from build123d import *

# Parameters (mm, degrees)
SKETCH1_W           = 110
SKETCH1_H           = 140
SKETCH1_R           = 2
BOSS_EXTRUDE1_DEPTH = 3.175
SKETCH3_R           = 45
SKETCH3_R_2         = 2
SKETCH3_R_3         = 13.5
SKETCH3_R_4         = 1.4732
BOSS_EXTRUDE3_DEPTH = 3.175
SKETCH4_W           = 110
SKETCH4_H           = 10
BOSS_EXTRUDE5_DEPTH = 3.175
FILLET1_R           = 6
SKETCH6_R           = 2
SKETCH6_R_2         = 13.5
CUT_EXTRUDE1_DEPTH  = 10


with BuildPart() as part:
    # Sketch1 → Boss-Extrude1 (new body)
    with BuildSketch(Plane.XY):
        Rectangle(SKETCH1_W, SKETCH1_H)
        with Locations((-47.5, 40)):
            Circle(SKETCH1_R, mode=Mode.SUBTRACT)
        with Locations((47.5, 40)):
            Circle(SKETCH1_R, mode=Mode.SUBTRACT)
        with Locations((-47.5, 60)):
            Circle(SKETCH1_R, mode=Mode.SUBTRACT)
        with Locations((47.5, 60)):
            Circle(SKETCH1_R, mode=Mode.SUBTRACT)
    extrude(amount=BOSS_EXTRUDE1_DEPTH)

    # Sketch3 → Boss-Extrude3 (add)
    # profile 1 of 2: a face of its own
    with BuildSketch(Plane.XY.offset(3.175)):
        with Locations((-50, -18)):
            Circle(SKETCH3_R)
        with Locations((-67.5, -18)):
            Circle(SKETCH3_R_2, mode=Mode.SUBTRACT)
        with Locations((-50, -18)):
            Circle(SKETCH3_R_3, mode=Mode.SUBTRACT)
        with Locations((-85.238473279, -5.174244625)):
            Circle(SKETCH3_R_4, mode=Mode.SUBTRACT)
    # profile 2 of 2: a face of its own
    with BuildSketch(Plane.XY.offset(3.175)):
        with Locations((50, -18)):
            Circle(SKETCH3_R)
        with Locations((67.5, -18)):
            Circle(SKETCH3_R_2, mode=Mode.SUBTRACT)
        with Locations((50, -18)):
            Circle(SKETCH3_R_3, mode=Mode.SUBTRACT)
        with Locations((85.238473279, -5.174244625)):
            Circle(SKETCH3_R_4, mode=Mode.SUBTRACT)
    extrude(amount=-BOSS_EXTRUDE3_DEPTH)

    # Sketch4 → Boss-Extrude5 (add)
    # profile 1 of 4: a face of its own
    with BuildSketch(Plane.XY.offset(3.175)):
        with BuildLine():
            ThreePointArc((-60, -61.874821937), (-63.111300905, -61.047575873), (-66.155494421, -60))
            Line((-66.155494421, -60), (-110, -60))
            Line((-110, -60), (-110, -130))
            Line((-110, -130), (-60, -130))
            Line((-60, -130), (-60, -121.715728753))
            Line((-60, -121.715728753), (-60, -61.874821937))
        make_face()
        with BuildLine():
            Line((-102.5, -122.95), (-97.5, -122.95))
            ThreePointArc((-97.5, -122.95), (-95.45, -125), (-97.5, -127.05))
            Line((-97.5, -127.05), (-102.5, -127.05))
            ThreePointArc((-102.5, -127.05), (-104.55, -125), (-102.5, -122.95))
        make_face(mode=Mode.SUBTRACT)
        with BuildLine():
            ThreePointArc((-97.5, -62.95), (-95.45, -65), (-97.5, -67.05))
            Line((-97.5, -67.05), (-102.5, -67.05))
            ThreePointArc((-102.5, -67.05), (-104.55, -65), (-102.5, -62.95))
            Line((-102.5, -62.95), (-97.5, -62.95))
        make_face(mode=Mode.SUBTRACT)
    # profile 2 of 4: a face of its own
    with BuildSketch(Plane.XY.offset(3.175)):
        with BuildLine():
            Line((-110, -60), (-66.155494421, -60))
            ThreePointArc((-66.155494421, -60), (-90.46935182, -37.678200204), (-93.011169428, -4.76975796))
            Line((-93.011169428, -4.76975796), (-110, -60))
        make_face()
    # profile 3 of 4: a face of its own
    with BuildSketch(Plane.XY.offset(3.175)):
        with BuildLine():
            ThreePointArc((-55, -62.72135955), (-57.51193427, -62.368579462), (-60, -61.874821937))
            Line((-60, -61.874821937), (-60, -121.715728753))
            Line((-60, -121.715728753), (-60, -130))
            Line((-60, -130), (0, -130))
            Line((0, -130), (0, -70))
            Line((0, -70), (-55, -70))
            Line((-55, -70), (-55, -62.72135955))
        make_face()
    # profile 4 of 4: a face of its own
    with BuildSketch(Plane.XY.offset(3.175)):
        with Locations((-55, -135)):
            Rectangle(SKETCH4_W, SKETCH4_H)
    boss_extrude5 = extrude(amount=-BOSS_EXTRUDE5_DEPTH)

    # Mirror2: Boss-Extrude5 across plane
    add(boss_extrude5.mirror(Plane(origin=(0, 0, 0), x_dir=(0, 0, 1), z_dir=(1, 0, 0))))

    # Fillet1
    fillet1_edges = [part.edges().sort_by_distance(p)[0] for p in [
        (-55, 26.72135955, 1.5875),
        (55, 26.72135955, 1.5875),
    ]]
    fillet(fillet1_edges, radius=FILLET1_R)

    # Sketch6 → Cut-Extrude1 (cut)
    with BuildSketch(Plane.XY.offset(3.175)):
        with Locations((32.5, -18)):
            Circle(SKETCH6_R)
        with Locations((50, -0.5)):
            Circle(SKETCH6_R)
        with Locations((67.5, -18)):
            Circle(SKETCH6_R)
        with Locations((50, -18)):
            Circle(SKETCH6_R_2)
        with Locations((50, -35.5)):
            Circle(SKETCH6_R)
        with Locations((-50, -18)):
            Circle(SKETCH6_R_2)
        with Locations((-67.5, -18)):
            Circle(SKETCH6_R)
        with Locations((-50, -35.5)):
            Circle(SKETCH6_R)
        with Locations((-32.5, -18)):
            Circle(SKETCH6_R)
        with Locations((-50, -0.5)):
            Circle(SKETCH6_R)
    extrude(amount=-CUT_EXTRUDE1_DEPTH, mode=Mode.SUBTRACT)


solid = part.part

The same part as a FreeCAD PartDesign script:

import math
import FreeCAD as App
import Part
import Sketcher
from FreeCAD import Vector


def edges_at(feature, points):
    """Names of the edges that pass closest to the given points."""
    edges = feature.Shape.Edges
    near = lambda p: min(range(len(edges)), key=lambda i: edges[i].distToShape(Part.Vertex(*p))[0])
    return sorted({f"Edge{near(p) + 1}" for p in points})

doc = App.newDocument("Part")
body = doc.addObject("PartDesign::Body", "Body")

sketch1 = body.newObject("Sketcher::SketchObject", "Sketch")
sketch1.AttachmentSupport = (doc.getObject("XY_Plane"), [""])
sketch1.MapMode = "FlatFace"
sketch1.addGeometry([
    Part.LineSegment(Vector(-55, 70, 0), Vector(-55, -70, 0)),
    Part.LineSegment(Vector(-55, -70, 0), Vector(55, -70, 0)),
    Part.LineSegment(Vector(55, -70, 0), Vector(55, 70, 0)),
    Part.LineSegment(Vector(55, 70, 0), Vector(-55, 70, 0)),
    Part.Circle(Vector(-47.5, 40, 0), Vector(0, 0, 1), 2),
    Part.Circle(Vector(47.5, 40, 0), Vector(0, 0, 1), 2),
    Part.Circle(Vector(-47.5, 60, 0), Vector(0, 0, 1), 2),
    Part.Circle(Vector(47.5, 60, 0), Vector(0, 0, 1), 2),
], False)
sketch1.addConstraint([
    Sketcher.Constraint("Coincident", 0, 2, 1, 1),
    Sketcher.Constraint("Coincident", 1, 2, 2, 1),
    Sketcher.Constraint("Coincident", 2, 2, 3, 1),
    Sketcher.Constraint("Coincident", 3, 2, 0, 1),
    Sketcher.Constraint("Vertical", 0),
    Sketcher.Constraint("Horizontal", 1),
    Sketcher.Constraint("Vertical", 2),
    Sketcher.Constraint("Horizontal", 3),
    Sketcher.Constraint("Equal", 4, 5),
    Sketcher.Constraint("Equal", 5, 6),
    Sketcher.Constraint("Equal", 6, 7),
    Sketcher.Constraint("Symmetric", 0, 2, 2, 2, -1, 1),
    Sketcher.Constraint("Symmetric", 4, 3, 5, 3, -2),
    Sketcher.Constraint("Symmetric", 6, 3, 7, 3, -2),
    Sketcher.Constraint("Vertical", 4, 3, 6, 3),
    Sketcher.Constraint("Diameter", 4, 4.0),
    Sketcher.Constraint("DistanceX", 1, 1, 1, 2, 110.0),
    Sketcher.Constraint("DistanceY", 0, 2, 0, 1, 140.0),
    Sketcher.Constraint("DistanceY", -1, 1, 4, 3, 40.0),
    Sketcher.Constraint("DistanceY", -1, 1, 6, 3, 60.0),
    Sketcher.Constraint("DistanceX", 4, 3, 5, 3, 95.0),
])
pad1 = body.newObject("PartDesign::Pad", "Pad")
pad1.Profile = sketch1
pad1.Length = 3.175

sketch2 = body.newObject("Sketcher::SketchObject", "Sketch001")
sketch2.AttachmentSupport = (doc.getObject("XY_Plane"), [""])
sketch2.MapMode = "FlatFace"
sketch2.AttachmentOffset = App.Placement(Vector(0, 0, 3.175), App.Rotation())
sketch2.addGeometry([
    Part.Circle(Vector(-50, -18, 0), Vector(0, 0, 1), 45),
    Part.Circle(Vector(-67.5, -18, 0), Vector(0, 0, 1), 2),
    Part.Circle(Vector(-50, -18, 0), Vector(0, 0, 1), 13.5),
    Part.Circle(Vector(-85.2, -5.2, 0), Vector(0, 0, 1), 1.5),
    Part.Circle(Vector(50, -18, 0), Vector(0, 0, 1), 45),
    Part.Circle(Vector(50, -18, 0), Vector(0, 0, 1), 13.5),
    Part.Circle(Vector(67.5, -18, 0), Vector(0, 0, 1), 2),
    Part.Circle(Vector(85.2, -5.2, 0), Vector(0, 0, 1), 1.5),
], False)
sketch2.addConstraint([
    Sketcher.Constraint("Coincident", 2, 3, 0, 3),
    Sketcher.Constraint("Coincident", 5, 3, 4, 3),
    Sketcher.Constraint("Equal", 0, 4),
    Sketcher.Constraint("Equal", 2, 5),
    Sketcher.Constraint("Equal", 1, 6),
    Sketcher.Constraint("Equal", 3, 7),
    Sketcher.Constraint("Symmetric", 0, 3, 4, 3, -2),
    Sketcher.Constraint("Symmetric", 1, 3, 6, 3, -2),
    Sketcher.Constraint("Symmetric", 3, 3, 7, 3, -2),
    Sketcher.Constraint("Horizontal", 0, 3, 1, 3),
    Sketcher.Constraint("Diameter", 0, 90.0),
    Sketcher.Constraint("Diameter", 1, 4.0),
    Sketcher.Constraint("Diameter", 2, 27.0),
    Sketcher.Constraint("DistanceX", 0, 3, -1, 1, 50.0),
    Sketcher.Constraint("DistanceY", 0, 3, -1, 1, 18.0),
    Sketcher.Constraint("DistanceX", 1, 3, 6, 3, 135.0),
    Sketcher.Constraint("Diameter", 3, 2.9464),
    Sketcher.Constraint("DistanceX", 3, 3, -1, 1, 85.238473),
    Sketcher.Constraint("DistanceY", 3, 3, -1, 1, 5.174245),
])
pad2 = body.newObject("PartDesign::Pad", "Pad001")
pad2.Profile = sketch2
pad2.Length = 3.175
pad2.Reversed = True

sketch3 = body.newObject("Sketcher::SketchObject", "Sketch002")
sketch3.AttachmentSupport = (doc.getObject("XY_Plane"), [""])
sketch3.MapMode = "FlatFace"
sketch3.AttachmentOffset = App.Placement(Vector(0, 0, 3.175), App.Rotation())
sketch3.addGeometry([
    Part.ArcOfCircle(Part.Circle(Vector(-50, -18, 0), Vector(0, 0, 1), 45), math.radians(-111.04), math.radians(-102.84)),
    Part.ArcOfCircle(Part.Circle(Vector(-50, -18, 0), Vector(0, 0, 1), 45), math.radians(163), math.radians(249)),
    Part.LineSegment(Vector(-93, -4.8, 0), Vector(-110, -60, 0)),
    Part.LineSegment(Vector(-110, -60, 0), Vector(-110, -140, 0)),
    Part.LineSegment(Vector(-110, -140, 0), Vector(0, -140, 0)),
    Part.LineSegment(Vector(0, -140, 0), Vector(0, -70, 0)),
    Part.LineSegment(Vector(0, -70, 0), Vector(-55, -70, 0)),
    Part.LineSegment(Vector(-55, -70, 0), Vector(-55, -62.7, 0)),
    Part.ArcOfCircle(Part.Circle(Vector(-50, -18, 0), Vector(0, 0, 1), 45), math.radians(-102.84), math.radians(-96.38)),
    Part.ArcOfCircle(Part.Circle(Vector(-102.5, -125, 0), Vector(0, 0, 1), 2), math.radians(90), math.radians(270)),
    Part.LineSegment(Vector(-102.5, -123, 0), Vector(-97.5, -123, 0)),
    Part.ArcOfCircle(Part.Circle(Vector(-97.5, -125, 0), Vector(0, 0, 1), 2), math.radians(-90), math.radians(90)),
    Part.LineSegment(Vector(-97.5, -127, 0), Vector(-102.5, -127, 0)),
    Part.LineSegment(Vector(-102.5, -63, 0), Vector(-97.5, -63, 0)),
    Part.ArcOfCircle(Part.Circle(Vector(-97.5, -65, 0), Vector(0, 0, 1), 2), math.radians(-90), math.radians(90)),
    Part.LineSegment(Vector(-97.5, -67, 0), Vector(-102.5, -67, 0)),
    Part.ArcOfCircle(Part.Circle(Vector(-102.5, -65, 0), Vector(0, 0, 1), 2), math.radians(90), math.radians(270)),
], False)
sketch3.addConstraint([
    Sketcher.Constraint("Tangent", 0, 1, 1, 2),
    Sketcher.Constraint("Tangent", 1, 1, 2, 1),
    Sketcher.Constraint("Coincident", 2, 2, 3, 1),
    Sketcher.Constraint("Coincident", 3, 2, 4, 1),
    Sketcher.Constraint("Coincident", 4, 2, 5, 1),
    Sketcher.Constraint("Coincident", 5, 2, 6, 1),
    Sketcher.Constraint("Coincident", 6, 2, 7, 1),
    Sketcher.Constraint("Coincident", 7, 2, 8, 2),
    Sketcher.Constraint("Tangent", 8, 1, 0, 2),
    Sketcher.Constraint("Tangent", 9, 1, 10, 1),
    Sketcher.Constraint("Tangent", 10, 2, 11, 2),
    Sketcher.Constraint("Tangent", 11, 1, 12, 1),
    Sketcher.Constraint("Tangent", 12, 2, 9, 2),
    Sketcher.Constraint("Tangent", 13, 2, 14, 2),
    Sketcher.Constraint("Tangent", 14, 1, 15, 1),
    Sketcher.Constraint("Tangent", 15, 2, 16, 2),
    Sketcher.Constraint("Tangent", 16, 1, 13, 1),
    Sketcher.Constraint("Vertical", 3),
    Sketcher.Constraint("Horizontal", 4),
    Sketcher.Constraint("Vertical", 5),
    Sketcher.Constraint("Horizontal", 6),
    Sketcher.Constraint("Vertical", 7),
    Sketcher.Constraint("Horizontal", 10),
    Sketcher.Constraint("Horizontal", 12),
    Sketcher.Constraint("Horizontal", 13),
    Sketcher.Constraint("Horizontal", 15),
    Sketcher.Constraint("Equal", 0, 1),
    Sketcher.Constraint("Equal", 1, 8),
    Sketcher.Constraint("Equal", 11, 14),
    Sketcher.Constraint("PointOnObject", 4, 2, -2),
    Sketcher.Constraint("Horizontal", 0, 1, 2, 2),
    Sketcher.Constraint("Vertical", 11, 3, 14, 3),
    Sketcher.Constraint("Vertical", 9, 3, 16, 3),
    Sketcher.Constraint("Radius", 0, 45.0),
    Sketcher.Constraint("DistanceX", 4, 1, 4, 2, 110.0),
    Sketcher.Constraint("DistanceX", 6, 2, 6, 1, 55.0),
    Sketcher.Constraint("DistanceX", 10, 1, 10, 2, 5.0),
    Sketcher.Constraint("DistanceY", 3, 2, 3, 1, 80.0),
    Sketcher.Constraint("DistanceY", 5, 1, 5, 2, 70.0),
    Sketcher.Constraint("Radius", 9, 2.05),
    Sketcher.Constraint("DistanceX", 0, 3, -1, 1, 50.0),
    Sketcher.Constraint("DistanceY", 0, 3, -1, 1, 18.0),
    Sketcher.Constraint("DistanceY", 9, 3, -1, 1, 125.0),
    Sketcher.Constraint("DistanceY", 14, 3, -1, 1, 65.0),
    Sketcher.Constraint("DistanceY", 0, 1, -1, 1, 60.0),
    Sketcher.Constraint("DistanceX", 8, 1, -1, 1, 60.0),
    Sketcher.Constraint("DistanceX", 9, 3, -1, 1, 102.5),
])
pad3 = body.newObject("PartDesign::Pad", "Pad002")
pad3.Profile = sketch3
pad3.Length = 3.175
pad3.Reversed = True
doc.recompute()

mirrored = body.newObject("PartDesign::Mirrored", "Mirrored")
mirrored.Originals = [pad3]
mirrored.MirrorPlane = (doc.getObject("YZ_Plane"), [""])
body.Tip = mirrored
doc.recompute()

fillet = body.newObject("PartDesign::Fillet", "Fillet")
fillet.Base = (mirrored, edges_at(mirrored, [(-55, 26.721, 1.587), (55, 26.721, 1.587)]))
fillet.Radius = 6

sketch4 = body.newObject("Sketcher::SketchObject", "Sketch003")
sketch4.AttachmentSupport = (doc.getObject("XY_Plane"), [""])
sketch4.MapMode = "FlatFace"
sketch4.AttachmentOffset = App.Placement(Vector(0, 0, 3.175), App.Rotation())
sketch4.addGeometry([
    Part.Circle(Vector(32.5, -18, 0), Vector(0, 0, 1), 2),
    Part.Circle(Vector(50, -0.5, 0), Vector(0, 0, 1), 2),
    Part.Circle(Vector(67.5, -18, 0), Vector(0, 0, 1), 2),
    Part.Circle(Vector(50, -18, 0), Vector(0, 0, 1), 13.5),
    Part.Circle(Vector(50, -35.5, 0), Vector(0, 0, 1), 2),
    Part.Circle(Vector(-50, -18, 0), Vector(0, 0, 1), 13.5),
    Part.Circle(Vector(-67.5, -18, 0), Vector(0, 0, 1), 2),
    Part.Circle(Vector(-50, -35.5, 0), Vector(0, 0, 1), 2),
    Part.Circle(Vector(-32.5, -18, 0), Vector(0, 0, 1), 2),
    Part.Circle(Vector(-50, -0.5, 0), Vector(0, 0, 1), 2),
], False)
sketch4.addConstraint([
    Sketcher.Constraint("Equal", 0, 1),
    Sketcher.Constraint("Equal", 1, 2),
    Sketcher.Constraint("Equal", 2, 4),
    Sketcher.Constraint("Equal", 3, 5),
    Sketcher.Constraint("Equal", 4, 6),
    Sketcher.Constraint("Equal", 6, 7),
    Sketcher.Constraint("Equal", 7, 8),
    Sketcher.Constraint("Equal", 8, 9),
    Sketcher.Constraint("Symmetric", 3, 3, 5, 3, -2),
    Sketcher.Constraint("Symmetric", 2, 3, 6, 3, -2),
    Sketcher.Constraint("Symmetric", 4, 3, 7, 3, -2),
    Sketcher.Constraint("Symmetric", 0, 3, 8, 3, -2),
    Sketcher.Constraint("Symmetric", 1, 3, 9, 3, -2),
    Sketcher.Constraint("Horizontal", 0, 3, 2, 3),
    Sketcher.Constraint("Horizontal", 2, 3, 3, 3),
    Sketcher.Constraint("Vertical", 1, 3, 3, 3),
    Sketcher.Constraint("Vertical", 3, 3, 4, 3),
    Sketcher.Constraint("Diameter", 0, 4.0),
    Sketcher.Constraint("Diameter", 3, 27.0),
    Sketcher.Constraint("DistanceY", 0, 3, -1, 1, 18.0),
    Sketcher.Constraint("DistanceX", -1, 1, 1, 3, 50.0),
    Sketcher.Constraint("DistanceX", 0, 3, 2, 3, 35.0),
    Sketcher.Constraint("DistanceY", 4, 3, 1, 3, 35.0),
    Sketcher.Constraint("DistanceX", 6, 3, 0, 3, 100.0),
    Sketcher.Constraint("DistanceY", 1, 3, -1, 1, 0.5),
])
pocket1 = body.newObject("PartDesign::Pocket", "Pocket")
pocket1.Profile = sketch4
pocket1.Length = 10

doc.recompute()
